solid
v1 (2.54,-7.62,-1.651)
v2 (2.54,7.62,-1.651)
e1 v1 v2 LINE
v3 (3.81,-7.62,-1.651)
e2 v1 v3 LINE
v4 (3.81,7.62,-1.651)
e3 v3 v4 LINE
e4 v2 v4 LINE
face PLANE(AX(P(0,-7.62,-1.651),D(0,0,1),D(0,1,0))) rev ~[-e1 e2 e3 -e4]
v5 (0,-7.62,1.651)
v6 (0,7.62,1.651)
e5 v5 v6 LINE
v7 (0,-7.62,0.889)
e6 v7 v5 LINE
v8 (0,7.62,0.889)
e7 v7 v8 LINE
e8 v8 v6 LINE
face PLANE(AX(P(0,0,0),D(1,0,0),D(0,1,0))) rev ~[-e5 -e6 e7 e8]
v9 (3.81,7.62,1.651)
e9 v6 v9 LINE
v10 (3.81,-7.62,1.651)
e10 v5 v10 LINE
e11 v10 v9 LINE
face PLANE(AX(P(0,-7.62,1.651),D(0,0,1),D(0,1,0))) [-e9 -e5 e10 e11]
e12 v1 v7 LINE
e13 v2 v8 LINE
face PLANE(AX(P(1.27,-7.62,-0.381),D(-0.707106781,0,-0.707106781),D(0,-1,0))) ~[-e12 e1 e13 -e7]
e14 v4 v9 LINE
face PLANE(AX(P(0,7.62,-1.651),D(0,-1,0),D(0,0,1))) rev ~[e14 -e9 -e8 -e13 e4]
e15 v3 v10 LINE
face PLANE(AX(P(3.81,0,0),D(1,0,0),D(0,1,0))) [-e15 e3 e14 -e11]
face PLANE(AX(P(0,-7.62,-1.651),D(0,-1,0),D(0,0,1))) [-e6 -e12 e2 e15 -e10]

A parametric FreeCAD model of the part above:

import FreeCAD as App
import Part
import Sketcher

V = App.Vector
Q = App.Units.Quantity


def edges_at(feature, points):
    """Names of the edges that pass closest to the given points."""
    edges = feature.Shape.Edges
    near = lambda p: min(range(len(edges)), key=lambda i: edges[i].distToShape(Part.Vertex(*p))[0])
    return sorted({f"Edge{near(p) + 1}" for p in points})

doc = App.newDocument("Part")
body = doc.addObject("PartDesign::Body", "Body")

# Sketch on YZ plane
sketch1 = body.newObject("Sketcher::SketchObject", "Sketch")
sketch1.AttachmentSupport = (doc.getObject("YZ_Plane"), [""])
sketch1.MapMode = "FlatFace"
sketch1.addGeometry(Part.LineSegment(V(-7.62, 1.651, 0), V(-7.62, -1.651, 0)), False)
sketch1.addGeometry(Part.LineSegment(V(-7.62, -1.651, 0), V(7.62, -1.651, 0)), False)
sketch1.addGeometry(Part.LineSegment(V(7.62, -1.651, 0), V(7.62, 1.651, 0)), False)
sketch1.addGeometry(Part.LineSegment(V(7.62, 1.651, 0), V(-7.62, 1.651, 0)), False)
sketch1.addConstraint(Sketcher.Constraint("Coincident", 0, 2, 1, 1))
sketch1.addConstraint(Sketcher.Constraint("Coincident", 1, 2, 2, 1))
sketch1.addConstraint(Sketcher.Constraint("Coincident", 2, 2, 3, 1))
sketch1.addConstraint(Sketcher.Constraint("Coincident", 3, 2, 0, 1))
sketch1.addConstraint(Sketcher.Constraint("Vertical", 0))
sketch1.addConstraint(Sketcher.Constraint("Horizontal", 1))
sketch1.addConstraint(Sketcher.Constraint("Vertical", 2))
sketch1.addConstraint(Sketcher.Constraint("Horizontal", 3))
sketch1.addConstraint(Sketcher.Constraint("Symmetric", 0, 2, 2, 2, -1, 1))
sketch1.addConstraint(Sketcher.Constraint("DistanceX", 1, 1, 1, 2, Q("0.6 in")))
sketch1.addConstraint(Sketcher.Constraint("DistanceY", 0, 2, 0, 1, Q("0.13 in")))
pad1 = body.newObject("PartDesign::Pad", "Pad")
pad1.Profile = sketch1
pad1.Length = Q("0.15 in")
doc.recompute()

chamfer = body.newObject("PartDesign::Chamfer", "Chamfer")
chamfer.Base = (pad1, edges_at(pad1, [(0, 0, -1.651)]))
chamfer.Size = Q("0.1 in")

doc.recompute()
